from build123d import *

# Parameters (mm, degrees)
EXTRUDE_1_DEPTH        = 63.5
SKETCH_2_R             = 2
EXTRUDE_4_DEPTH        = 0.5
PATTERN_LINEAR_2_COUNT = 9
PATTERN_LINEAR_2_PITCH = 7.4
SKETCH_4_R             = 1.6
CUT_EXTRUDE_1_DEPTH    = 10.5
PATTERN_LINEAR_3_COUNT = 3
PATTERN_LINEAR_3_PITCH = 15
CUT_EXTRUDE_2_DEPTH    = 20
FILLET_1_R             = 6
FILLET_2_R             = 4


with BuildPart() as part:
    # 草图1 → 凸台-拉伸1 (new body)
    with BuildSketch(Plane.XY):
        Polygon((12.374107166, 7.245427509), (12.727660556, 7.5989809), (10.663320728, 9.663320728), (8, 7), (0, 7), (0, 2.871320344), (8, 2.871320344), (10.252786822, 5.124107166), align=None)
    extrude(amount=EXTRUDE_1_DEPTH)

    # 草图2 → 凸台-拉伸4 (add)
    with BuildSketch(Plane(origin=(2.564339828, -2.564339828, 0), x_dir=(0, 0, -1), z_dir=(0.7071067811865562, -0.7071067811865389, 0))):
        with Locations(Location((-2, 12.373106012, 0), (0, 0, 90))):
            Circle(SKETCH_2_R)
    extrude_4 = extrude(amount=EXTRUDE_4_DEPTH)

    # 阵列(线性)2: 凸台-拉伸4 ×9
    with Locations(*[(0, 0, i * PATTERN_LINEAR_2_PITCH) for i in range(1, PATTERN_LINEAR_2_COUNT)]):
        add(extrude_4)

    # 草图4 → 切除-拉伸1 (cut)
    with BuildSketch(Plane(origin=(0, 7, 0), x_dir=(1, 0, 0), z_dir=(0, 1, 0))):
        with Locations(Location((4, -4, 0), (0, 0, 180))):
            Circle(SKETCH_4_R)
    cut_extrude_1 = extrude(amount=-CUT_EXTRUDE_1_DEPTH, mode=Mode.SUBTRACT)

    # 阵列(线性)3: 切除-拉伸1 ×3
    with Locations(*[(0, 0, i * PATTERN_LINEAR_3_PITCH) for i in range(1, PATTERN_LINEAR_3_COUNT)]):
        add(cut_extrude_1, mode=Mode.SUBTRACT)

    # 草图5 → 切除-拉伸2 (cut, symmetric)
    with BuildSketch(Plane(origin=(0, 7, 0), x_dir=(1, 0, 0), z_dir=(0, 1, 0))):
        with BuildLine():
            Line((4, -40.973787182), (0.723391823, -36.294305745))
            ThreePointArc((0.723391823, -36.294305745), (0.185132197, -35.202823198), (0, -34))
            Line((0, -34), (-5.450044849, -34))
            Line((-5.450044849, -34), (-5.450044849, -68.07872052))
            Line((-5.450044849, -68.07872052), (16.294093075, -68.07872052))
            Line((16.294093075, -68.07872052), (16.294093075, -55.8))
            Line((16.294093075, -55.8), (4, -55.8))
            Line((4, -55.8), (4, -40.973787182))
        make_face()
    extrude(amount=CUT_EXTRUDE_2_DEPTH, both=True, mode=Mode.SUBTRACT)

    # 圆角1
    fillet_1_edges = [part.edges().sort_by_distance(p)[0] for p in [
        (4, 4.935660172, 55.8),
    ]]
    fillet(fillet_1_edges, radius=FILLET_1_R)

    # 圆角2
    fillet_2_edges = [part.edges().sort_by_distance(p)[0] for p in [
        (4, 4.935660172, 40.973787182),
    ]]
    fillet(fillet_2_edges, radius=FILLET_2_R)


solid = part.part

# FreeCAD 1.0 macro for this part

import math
import FreeCAD as App
import Part
import Sketcher
Q = App.Units.Quantity


def edges_at(feature, points):
    """Names of the edges that pass closest to the given points."""
    edges = feature.Shape.Edges
    near = lambda p: min(range(len(edges)), key=lambda i: edges[i].distToShape(Part.Vertex(*p))[0])
    return sorted({f"Edge{near(p) + 1}" for p in points})

doc = App.newDocument("Part")
body = doc.addObject("PartDesign::Body", "Body")

# Sketch on XY plane
sketch1 = doc.addObject("Sketcher::SketchObject", "Sketch")
body.addObject(sketch1)
sketch1.AttachmentSupport = (doc.XY_Plane, [""])
sketch1.MapMode = "FlatFace"
sketch1.addGeometry(Part.LineSegment(App.Vector(12.37, 7.25, 0), App.Vector(12.73, 7.6, 0)), False)
sketch1.addGeometry(Part.LineSegment(App.Vector(12.73, 7.6, 0), App.Vector(10.66, 9.66, 0)), False)
sketch1.addGeometry(Part.LineSegment(App.Vector(10.66, 9.66, 0), App.Vector(8, 7, 0)), False)
sketch1.addGeometry(Part.LineSegment(App.Vector(8, 7, 0), App.Vector(0, 7, 0)), False)
sketch1.addGeometry(Part.LineSegment(App.Vector(0, 7, 0), App.Vector(0, 2.87, 0)), False)
sketch1.addGeometry(Part.LineSegment(App.Vector(0, 2.87, 0), App.Vector(8, 2.87, 0)), False)
sketch1.addGeometry(Part.LineSegment(App.Vector(8, 2.87, 0), App.Vector(10.25, 5.12, 0)), False)
sketch1.addGeometry(Part.LineSegment(App.Vector(10.25, 5.12, 0), App.Vector(12.37, 7.25, 0)), False)
sketch1.addConstraint(Sketcher.Constraint("Coincident", 0, 2, 1, 1))
sketch1.addConstraint(Sketcher.Constraint("Coincident", 1, 2, 2, 1))
sketch1.addConstraint(Sketcher.Constraint("Coincident", 2, 2, 3, 1))
sketch1.addConstraint(Sketcher.Constraint("Coincident", 3, 2, 4, 1))
sketch1.addConstraint(Sketcher.Constraint("Coincident", 4, 2, 5, 1))
sketch1.addConstraint(Sketcher.Constraint("Coincident", 5, 2, 6, 1))
sketch1.addConstraint(Sketcher.Constraint("Coincident", 6, 2, 7, 1))
sketch1.addConstraint(Sketcher.Constraint("Coincident", 7, 2, 0, 1))
sketch1.addConstraint(Sketcher.Constraint("Horizontal", 3))
sketch1.addConstraint(Sketcher.Constraint("Vertical", 4))
sketch1.addConstraint(Sketcher.Constraint("Horizontal", 5))
sketch1.addConstraint(Sketcher.Constraint("PointOnObject", 3, 2, -2))
sketch1.addConstraint(Sketcher.Constraint("Perpendicular", 0, 1))
sketch1.addConstraint(Sketcher.Constraint("Perpendicular", 1, 2))
sketch1.addConstraint(Sketcher.Constraint("Parallel", 2, 6))
sketch1.addConstraint(Sketcher.Constraint("Parallel", 6, 7))
sketch1.addConstraint(Sketcher.Constraint("Vertical", 2, 2, 5, 2))
sketch1.addConstraint(Sketcher.Constraint("DistanceX", 3, 2, 3, 1, 8.0))
sketch1.addConstraint(Sketcher.Constraint("Angle", 0, Q("45 deg")))
sketch1.addConstraint(Sketcher.Constraint("Distance", 7, 3.0))
sketch1.addConstraint(Sketcher.Constraint("DistanceY", -1, 1, 2, 2, 7.0))
sketch1.addConstraint(Sketcher.Constraint("Distance", 0, 0.5))
sketch1.addConstraint(Sketcher.Constraint("DistanceY", 4, 2, 1, 2, 6.792))
sketch1.addConstraint(Sketcher.Constraint("DistanceY", 4, 2, 4, 1, 4.12868))
pad1 = doc.addObject("PartDesign::Pad", "Pad")
body.addObject(pad1)
pad1.Profile = sketch1
pad1.Length = 63.5

# Sketch on an angled plane
sketch2 = doc.addObject("Sketcher::SketchObject", "Sketch001")
body.addObject(sketch2)
sketch2.Placement = App.Placement(App.Vector(2.56434, -2.56434, 0), App.Rotation(App.Vector(0, 0, -1), App.Vector(0.707106781, 0.707106781, 0), App.Vector(0.707106781, -0.707106781, 0), "ZXY"))
sketch2.addGeometry(Part.Circle(App.Vector(-2, 12.4, 0), App.Vector(0, 0, 1), 2), False)
sketch2.addConstraint(Sketcher.Constraint("Diameter", 0, 4.0))
sketch2.addConstraint(Sketcher.Constraint("DistanceX", 0, 3, -1, 1, 2.0))
sketch2.addConstraint(Sketcher.Constraint("DistanceY", -1, 1, 0, 3, 12.373106))
pad2 = doc.addObject("PartDesign::Pad", "Pad001")
body.addObject(pad2)
pad2.Profile = sketch2
pad2.Length = 0.5
doc.recompute()

linearpattern = doc.addObject("PartDesign::LinearPattern", "LinearPattern")
body.addObject(linearpattern)
linearpattern.Originals = [pad2]
linearpattern.Direction = (doc.Z_Axis, [""])
linearpattern.Mode = "offset"
linearpattern.Offset = 7.4
linearpattern.Occurrences = 9
body.Tip = linearpattern

# Sketch on XZ plane
sketch3 = doc.addObject("Sketcher::SketchObject", "Sketch002")
body.addObject(sketch3)
sketch3.AttachmentSupport = (doc.XZ_Plane, [""])
sketch3.MapMode = "FlatFace"
sketch3.AttachmentOffset = App.Placement(App.Vector(0, 0, -7), App.Rotation())
sketch3.addGeometry(Part.Circle(App.Vector(4, 4, 0), App.Vector(0, 0, 1), 1.6), False)
sketch3.addConstraint(Sketcher.Constraint("Diameter", 0, 3.2))
sketch3.addConstraint(Sketcher.Constraint("DistanceX", -1, 1, 0, 3, 4.0))
sketch3.addConstraint(Sketcher.Constraint("DistanceY", -1, 1, 0, 3, 4.0))
pocket1 = doc.addObject("PartDesign::Pocket", "Pocket")
body.addObject(pocket1)
pocket1.Profile = sketch3
pocket1.Length = 10.5
pocket1.Reversed = True
doc.recompute()

linearpattern2 = doc.addObject("PartDesign::LinearPattern", "LinearPattern001")
body.addObject(linearpattern2)
linearpattern2.Originals = [pocket1]
linearpattern2.Direction = (doc.Z_Axis, [""])
linearpattern2.Mode = "offset"
linearpattern2.Offset = 15
linearpattern2.Occurrences = 3
body.Tip = linearpattern2

# Sketch on XZ plane
sketch4 = doc.addObject("Sketcher::SketchObject", "Sketch003")
body.addObject(sketch4)
sketch4.AttachmentSupport = (doc.XZ_Plane, [""])
sketch4.MapMode = "FlatFace"
sketch4.AttachmentOffset = App.Placement(App.Vector(0, 0, -7), App.Rotation())
sketch4.addGeometry(Part.LineSegment(App.Vector(4, 41, 0), App.Vector(0.7, 36.3, 0)), False)
sketch4.addGeometry(Part.ArcOfCircle(Part.Circle(App.Vector(4, 34, 0), App.Vector(0, 0, 1), 4), math.radians(145), math.radians(180)), False)
sketch4.addGeometry(Part.LineSegment(App.Vector(0, 34, 0), App.Vector(-5.5, 34, 0)), False)
sketch4.addGeometry(Part.LineSegment(App.Vector(-5.5, 34, 0), App.Vector(-5.5, 68.1, 0)), False)
sketch4.addGeometry(Part.LineSegment(App.Vector(-5.5, 68.1, 0), App.Vector(16.3, 68.1, 0)), False)
sketch4.addGeometry(Part.LineSegment(App.Vector(16.3, 68.1, 0), App.Vector(16.3, 55.8, 0)), False)
sketch4.addGeometry(Part.LineSegment(App.Vector(16.3, 55.8, 0), App.Vector(4, 55.8, 0)), False)
sketch4.addGeometry(Part.LineSegment(App.Vector(4, 55.8, 0), App.Vector(4, 41, 0)), False)
sketch4.addConstraint(Sketcher.Constraint("Tangent", 0, 2, 1, 1))
sketch4.addConstraint(Sketcher.Constraint("Coincident", 1, 2, 2, 1))
sketch4.addConstraint(Sketcher.Constraint("Coincident", 2, 2, 3, 1))
sketch4.addConstraint(Sketcher.Constraint("Coincident", 3, 2, 4, 1))
sketch4.addConstraint(Sketcher.Constraint("Coincident", 4, 2, 5, 1))
sketch4.addConstraint(Sketcher.Constraint("Coincident", 5, 2, 6, 1))
sketch4.addConstraint(Sketcher.Constraint("Coincident", 6, 2, 7, 1))
sketch4.addConstraint(Sketcher.Constraint("Coincident", 7, 2, 0, 1))
sketch4.addConstraint(Sketcher.Constraint("Horizontal", 2))
sketch4.addConstraint(Sketcher.Constraint("Vertical", 3))
sketch4.addConstraint(Sketcher.Constraint("Horizontal", 4))
sketch4.addConstraint(Sketcher.Constraint("Vertical", 5))
sketch4.addConstraint(Sketcher.Constraint("Horizontal", 6))
sketch4.addConstraint(Sketcher.Constraint("Vertical", 7))
sketch4.addConstraint(Sketcher.Constraint("PointOnObject", 1, 2, -2))
sketch4.addConstraint(Sketcher.Constraint("Vertical", 1, 3, 6, 2))
sketch4.addConstraint(Sketcher.Constraint("Radius", 1, 4.0))
sketch4.addConstraint(Sketcher.Constraint("Angle", 0, Q("-125 deg")))
sketch4.addConstraint(Sketcher.Constraint("DistanceY", -1, 1, 1, 3, 34.0))
sketch4.addConstraint(Sketcher.Constraint("DistanceY", -1, 1, 1, 2, 34.0))
sketch4.addConstraint(Sketcher.Constraint("DistanceY", -1, 1, 5, 2, 55.8))
sketch4.addConstraint(Sketcher.Constraint("DistanceY", 3, 1, 3, 2, 34.078721))
sketch4.addConstraint(Sketcher.Constraint("DistanceX", 0, 2, 4, 2, 15.570701))
sketch4.addConstraint(Sketcher.Constraint("DistanceX", 2, 2, 2, 1, 5.450045))
pocket2 = doc.addObject("PartDesign::Pocket", "Pocket001")
body.addObject(pocket2)
pocket2.Profile = sketch4
pocket2.Length = 40
pocket2.Midplane = True
doc.recompute()

fillet = doc.addObject("PartDesign::Fillet", "Fillet")
body.addObject(fillet)
fillet.Base = (pocket2, edges_at(pocket2, [(4, 4.936, 55.8)]))
fillet.Radius = 6
doc.recompute()

fillet2 = doc.addObject("PartDesign::Fillet", "Fillet001")
body.addObject(fillet2)
fillet2.Base = (fillet, edges_at(fillet, [(4, 4.936, 40.974)]))
fillet2.Radius = 4

doc.recompute()
